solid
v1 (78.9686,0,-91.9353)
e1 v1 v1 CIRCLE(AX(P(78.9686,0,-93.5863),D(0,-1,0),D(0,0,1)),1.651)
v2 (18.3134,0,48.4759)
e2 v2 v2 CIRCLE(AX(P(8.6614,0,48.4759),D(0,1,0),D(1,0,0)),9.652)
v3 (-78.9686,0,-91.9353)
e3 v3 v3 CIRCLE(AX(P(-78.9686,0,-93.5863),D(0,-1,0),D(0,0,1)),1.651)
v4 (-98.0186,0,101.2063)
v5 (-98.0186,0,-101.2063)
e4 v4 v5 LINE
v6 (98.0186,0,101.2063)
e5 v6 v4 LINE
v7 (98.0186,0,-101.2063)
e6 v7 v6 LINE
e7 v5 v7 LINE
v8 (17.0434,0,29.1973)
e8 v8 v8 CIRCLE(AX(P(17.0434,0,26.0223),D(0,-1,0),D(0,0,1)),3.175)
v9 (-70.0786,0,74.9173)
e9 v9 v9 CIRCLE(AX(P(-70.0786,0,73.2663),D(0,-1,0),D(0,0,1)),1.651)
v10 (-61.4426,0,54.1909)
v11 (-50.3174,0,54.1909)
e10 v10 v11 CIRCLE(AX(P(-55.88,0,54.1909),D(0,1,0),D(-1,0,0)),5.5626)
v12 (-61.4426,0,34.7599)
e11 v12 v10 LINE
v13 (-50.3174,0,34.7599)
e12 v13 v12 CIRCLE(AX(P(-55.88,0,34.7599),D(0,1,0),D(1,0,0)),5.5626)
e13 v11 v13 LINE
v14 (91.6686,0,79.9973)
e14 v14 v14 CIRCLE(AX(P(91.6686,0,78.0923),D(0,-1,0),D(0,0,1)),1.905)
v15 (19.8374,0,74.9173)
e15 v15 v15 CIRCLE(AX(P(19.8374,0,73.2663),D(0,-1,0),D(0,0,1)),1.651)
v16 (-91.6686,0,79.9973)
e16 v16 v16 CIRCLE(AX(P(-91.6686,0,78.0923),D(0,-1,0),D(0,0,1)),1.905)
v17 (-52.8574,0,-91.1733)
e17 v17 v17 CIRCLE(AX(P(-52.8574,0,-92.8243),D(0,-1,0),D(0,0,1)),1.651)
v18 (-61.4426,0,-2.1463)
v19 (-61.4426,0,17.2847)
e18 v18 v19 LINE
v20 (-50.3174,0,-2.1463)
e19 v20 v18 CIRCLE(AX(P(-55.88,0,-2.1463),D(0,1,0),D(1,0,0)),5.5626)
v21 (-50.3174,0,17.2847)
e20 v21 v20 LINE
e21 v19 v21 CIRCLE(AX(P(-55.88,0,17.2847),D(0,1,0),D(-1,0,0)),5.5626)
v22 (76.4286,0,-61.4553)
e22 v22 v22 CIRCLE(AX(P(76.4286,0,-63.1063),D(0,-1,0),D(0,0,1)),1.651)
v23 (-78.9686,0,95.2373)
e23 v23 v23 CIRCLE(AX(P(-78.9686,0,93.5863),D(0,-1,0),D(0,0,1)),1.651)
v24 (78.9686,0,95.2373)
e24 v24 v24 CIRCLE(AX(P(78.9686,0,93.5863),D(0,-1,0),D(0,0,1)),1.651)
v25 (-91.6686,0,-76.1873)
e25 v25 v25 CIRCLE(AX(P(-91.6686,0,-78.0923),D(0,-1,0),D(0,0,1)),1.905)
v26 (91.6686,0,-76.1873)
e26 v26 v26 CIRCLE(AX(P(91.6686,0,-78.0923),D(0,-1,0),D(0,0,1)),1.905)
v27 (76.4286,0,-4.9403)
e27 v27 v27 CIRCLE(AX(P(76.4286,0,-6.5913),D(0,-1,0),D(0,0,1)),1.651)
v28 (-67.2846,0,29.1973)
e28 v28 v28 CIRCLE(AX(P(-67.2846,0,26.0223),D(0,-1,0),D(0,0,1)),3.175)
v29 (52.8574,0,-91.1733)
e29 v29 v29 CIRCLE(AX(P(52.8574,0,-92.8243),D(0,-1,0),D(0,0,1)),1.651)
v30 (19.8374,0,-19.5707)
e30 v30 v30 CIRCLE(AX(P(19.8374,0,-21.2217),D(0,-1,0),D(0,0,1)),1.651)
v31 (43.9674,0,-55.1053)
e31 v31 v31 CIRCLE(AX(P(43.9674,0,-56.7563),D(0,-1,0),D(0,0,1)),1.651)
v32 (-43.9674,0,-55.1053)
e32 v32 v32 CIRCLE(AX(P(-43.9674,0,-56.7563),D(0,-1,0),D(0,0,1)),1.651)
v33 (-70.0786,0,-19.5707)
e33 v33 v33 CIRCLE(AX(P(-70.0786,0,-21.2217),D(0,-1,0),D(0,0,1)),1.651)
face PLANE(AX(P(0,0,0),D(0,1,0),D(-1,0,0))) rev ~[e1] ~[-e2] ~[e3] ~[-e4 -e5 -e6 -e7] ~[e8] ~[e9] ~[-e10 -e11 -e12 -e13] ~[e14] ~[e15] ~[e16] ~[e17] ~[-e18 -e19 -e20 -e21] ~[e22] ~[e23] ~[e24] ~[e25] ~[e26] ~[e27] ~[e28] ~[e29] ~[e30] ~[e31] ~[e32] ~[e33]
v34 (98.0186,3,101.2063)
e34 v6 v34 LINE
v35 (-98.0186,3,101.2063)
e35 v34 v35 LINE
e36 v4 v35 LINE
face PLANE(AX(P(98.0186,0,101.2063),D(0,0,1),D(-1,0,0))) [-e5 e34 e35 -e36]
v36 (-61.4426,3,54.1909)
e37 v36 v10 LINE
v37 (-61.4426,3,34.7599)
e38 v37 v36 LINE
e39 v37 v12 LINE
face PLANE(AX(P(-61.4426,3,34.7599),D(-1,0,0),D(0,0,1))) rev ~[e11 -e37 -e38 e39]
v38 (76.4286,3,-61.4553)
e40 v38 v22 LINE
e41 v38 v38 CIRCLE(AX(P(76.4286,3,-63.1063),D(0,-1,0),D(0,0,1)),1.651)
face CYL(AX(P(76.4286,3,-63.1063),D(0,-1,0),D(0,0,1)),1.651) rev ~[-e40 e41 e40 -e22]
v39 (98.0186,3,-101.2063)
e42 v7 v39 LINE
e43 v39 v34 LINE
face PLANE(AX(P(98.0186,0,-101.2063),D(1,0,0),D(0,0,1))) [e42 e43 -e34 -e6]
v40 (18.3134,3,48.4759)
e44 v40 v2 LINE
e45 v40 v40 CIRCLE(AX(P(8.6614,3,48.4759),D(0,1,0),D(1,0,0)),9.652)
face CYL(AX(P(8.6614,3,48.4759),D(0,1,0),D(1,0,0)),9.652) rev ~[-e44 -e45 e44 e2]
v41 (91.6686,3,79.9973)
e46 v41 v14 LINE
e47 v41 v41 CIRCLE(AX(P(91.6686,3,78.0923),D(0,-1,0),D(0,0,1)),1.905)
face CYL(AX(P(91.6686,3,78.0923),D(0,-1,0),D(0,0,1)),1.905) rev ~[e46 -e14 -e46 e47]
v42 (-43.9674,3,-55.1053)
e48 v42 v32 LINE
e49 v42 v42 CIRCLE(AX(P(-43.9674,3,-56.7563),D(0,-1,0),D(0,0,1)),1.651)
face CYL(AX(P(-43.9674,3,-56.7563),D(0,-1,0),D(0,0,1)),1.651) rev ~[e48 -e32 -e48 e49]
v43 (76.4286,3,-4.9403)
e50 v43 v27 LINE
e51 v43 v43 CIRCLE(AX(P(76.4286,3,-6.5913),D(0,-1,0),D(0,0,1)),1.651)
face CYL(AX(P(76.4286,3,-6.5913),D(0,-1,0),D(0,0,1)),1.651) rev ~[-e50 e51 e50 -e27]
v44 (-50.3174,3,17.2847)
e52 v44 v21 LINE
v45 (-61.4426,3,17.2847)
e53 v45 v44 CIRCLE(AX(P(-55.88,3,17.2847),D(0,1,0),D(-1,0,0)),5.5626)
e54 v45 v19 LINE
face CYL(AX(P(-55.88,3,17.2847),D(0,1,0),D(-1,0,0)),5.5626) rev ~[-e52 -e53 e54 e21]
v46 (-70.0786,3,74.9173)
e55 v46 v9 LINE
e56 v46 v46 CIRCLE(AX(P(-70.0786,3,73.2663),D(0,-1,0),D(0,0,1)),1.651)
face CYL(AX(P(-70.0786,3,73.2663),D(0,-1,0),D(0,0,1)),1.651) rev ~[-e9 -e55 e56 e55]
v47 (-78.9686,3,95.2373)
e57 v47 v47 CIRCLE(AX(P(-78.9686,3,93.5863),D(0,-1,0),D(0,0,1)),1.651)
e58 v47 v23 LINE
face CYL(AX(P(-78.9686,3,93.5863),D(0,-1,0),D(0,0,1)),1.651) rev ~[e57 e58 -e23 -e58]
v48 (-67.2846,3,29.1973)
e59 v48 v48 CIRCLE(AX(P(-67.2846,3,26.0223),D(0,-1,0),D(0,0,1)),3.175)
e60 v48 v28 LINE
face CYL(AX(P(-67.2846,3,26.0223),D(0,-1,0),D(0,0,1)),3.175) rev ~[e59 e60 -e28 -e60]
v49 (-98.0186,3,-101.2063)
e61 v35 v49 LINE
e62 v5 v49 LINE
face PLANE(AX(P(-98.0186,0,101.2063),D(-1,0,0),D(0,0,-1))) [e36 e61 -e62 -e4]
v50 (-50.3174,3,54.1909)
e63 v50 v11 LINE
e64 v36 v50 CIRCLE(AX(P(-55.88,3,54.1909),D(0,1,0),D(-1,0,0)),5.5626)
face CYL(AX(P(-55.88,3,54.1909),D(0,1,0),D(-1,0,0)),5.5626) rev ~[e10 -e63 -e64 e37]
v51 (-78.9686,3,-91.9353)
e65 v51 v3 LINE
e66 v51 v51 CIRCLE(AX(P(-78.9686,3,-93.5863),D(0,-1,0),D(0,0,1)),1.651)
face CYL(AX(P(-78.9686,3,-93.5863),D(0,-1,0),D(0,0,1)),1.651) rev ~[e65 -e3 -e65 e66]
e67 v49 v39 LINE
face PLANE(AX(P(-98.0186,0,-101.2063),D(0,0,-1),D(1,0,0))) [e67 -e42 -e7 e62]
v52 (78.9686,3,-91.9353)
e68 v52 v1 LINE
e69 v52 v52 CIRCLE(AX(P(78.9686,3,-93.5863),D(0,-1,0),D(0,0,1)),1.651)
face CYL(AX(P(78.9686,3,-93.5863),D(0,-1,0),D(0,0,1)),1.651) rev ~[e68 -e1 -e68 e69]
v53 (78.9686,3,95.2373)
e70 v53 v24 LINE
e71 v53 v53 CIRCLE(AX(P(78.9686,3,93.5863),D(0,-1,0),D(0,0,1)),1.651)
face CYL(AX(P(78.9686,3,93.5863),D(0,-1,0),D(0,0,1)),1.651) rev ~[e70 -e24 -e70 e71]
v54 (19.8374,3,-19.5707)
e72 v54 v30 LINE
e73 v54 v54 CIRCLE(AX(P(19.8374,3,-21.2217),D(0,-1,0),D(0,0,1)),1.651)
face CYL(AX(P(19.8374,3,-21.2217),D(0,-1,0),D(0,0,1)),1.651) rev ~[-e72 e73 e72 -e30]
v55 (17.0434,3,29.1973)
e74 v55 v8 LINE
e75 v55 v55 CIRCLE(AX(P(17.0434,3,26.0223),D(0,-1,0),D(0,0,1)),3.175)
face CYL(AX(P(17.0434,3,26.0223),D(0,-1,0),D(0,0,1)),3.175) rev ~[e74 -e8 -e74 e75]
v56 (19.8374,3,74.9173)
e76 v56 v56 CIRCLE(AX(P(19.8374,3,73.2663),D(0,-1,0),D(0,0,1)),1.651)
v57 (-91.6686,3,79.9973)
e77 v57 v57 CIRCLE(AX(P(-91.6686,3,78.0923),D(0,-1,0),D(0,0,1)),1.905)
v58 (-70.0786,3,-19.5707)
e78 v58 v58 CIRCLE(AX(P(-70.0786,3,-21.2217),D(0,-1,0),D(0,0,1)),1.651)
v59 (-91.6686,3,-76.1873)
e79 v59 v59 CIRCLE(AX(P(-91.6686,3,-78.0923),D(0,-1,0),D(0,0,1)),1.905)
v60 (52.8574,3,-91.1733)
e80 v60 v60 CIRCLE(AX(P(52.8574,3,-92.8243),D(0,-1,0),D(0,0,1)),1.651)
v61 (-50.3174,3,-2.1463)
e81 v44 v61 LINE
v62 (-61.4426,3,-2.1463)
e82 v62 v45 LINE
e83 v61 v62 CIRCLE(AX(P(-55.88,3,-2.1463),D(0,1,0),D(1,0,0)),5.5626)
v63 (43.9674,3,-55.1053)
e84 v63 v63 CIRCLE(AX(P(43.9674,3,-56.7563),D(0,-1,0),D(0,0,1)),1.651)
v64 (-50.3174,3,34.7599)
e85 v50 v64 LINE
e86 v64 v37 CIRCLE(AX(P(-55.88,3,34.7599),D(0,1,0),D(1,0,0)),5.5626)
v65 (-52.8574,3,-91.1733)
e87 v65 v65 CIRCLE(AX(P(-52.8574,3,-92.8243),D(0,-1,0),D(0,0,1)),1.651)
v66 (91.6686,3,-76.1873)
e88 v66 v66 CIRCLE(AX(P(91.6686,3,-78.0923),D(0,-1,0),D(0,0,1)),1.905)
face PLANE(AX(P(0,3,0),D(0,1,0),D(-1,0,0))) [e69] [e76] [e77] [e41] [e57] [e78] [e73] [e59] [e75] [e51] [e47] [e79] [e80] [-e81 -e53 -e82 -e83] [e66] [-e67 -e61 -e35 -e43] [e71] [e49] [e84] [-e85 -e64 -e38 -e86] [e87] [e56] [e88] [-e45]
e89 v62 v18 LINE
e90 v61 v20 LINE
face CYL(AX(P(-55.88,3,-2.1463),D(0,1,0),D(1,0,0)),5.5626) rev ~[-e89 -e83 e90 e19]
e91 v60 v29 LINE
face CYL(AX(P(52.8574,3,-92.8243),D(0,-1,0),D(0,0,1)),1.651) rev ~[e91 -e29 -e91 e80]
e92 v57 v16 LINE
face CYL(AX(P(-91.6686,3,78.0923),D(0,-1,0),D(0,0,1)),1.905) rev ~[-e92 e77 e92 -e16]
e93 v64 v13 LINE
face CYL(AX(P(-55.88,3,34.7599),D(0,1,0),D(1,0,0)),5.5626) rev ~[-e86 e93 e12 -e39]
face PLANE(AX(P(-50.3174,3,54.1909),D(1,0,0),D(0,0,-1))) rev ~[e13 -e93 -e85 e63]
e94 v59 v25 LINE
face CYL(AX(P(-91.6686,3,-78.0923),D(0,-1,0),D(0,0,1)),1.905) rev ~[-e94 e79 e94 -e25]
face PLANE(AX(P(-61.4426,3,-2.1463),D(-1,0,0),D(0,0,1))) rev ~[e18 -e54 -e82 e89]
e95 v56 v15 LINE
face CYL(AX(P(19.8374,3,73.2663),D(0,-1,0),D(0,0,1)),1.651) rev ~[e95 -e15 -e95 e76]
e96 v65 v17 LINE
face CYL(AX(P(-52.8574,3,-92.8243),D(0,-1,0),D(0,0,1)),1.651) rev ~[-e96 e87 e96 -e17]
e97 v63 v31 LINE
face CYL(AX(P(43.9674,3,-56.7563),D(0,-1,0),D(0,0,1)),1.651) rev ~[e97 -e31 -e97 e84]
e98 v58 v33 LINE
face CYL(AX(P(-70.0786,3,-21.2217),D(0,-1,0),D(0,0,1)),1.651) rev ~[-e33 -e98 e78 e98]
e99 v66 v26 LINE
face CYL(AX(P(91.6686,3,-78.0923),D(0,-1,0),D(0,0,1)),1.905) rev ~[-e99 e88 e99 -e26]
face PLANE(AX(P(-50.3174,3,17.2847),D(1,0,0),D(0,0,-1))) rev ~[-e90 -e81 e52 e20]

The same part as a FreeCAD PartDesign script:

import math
import FreeCAD as App
import Part
import Sketcher
from FreeCAD import Vector
Q = App.Units.Quantity


def add_polygon(sketch, points):
    """Adds a closed chain of lines whose ends are joined by coincident constraints."""
    first, n = sketch.GeometryCount, len(points)
    for a, b in zip(points, points[1:] + points[:1]):
        sketch.addGeometry(Part.LineSegment(App.Vector(*a, 0), App.Vector(*b, 0)), False)
    for i in range(n):
        sketch.addConstraint(Sketcher.Constraint("Coincident", first + i, 2, first + (i + 1) % n, 1))

doc = App.newDocument("Part")
params = doc.addObject("Spreadsheet::Sheet", "Params")
for row, (alias, value) in enumerate([
    ("sketch1_width", "7.718 in"),
    ("sketch1_height", "7.969 in"),
    ("pad1_length", "0.1181102 in"),
    ("sketch2_diameter", "0.15 in"),
    ("hole_diameter", "0.15 in"),
    ("sketch3_diameter", "0.13 in"),
    ("hole2_diameter", "0.13 in"),
    ("sketch4_diameter", "0.25 in"),
    ("hole3_diameter", "0.25 in"),
    ("sketch5_diameter", "0.13 in"),
    ("hole4_diameter", "0.13 in"),
    ("sketch6_diameter", "0.13 in"),
    ("hole5_diameter", "0.13 in"),
    ("sketch7_diameter", "0.13 in"),
    ("hole6_diameter", "0.13 in"),
    ("sketch8_radius", "0.219 in"),
    ("sketch8_height", "0.765 in"),
    ("sketch9_diameter", "0.76 in"),
], start=1):
    params.set(f"A{row}", alias)
    params.set(f"B{row}", "=" + value)
    params.setAlias(f"B{row}", alias)

body = doc.addObject("PartDesign::Body", "Body")

# Sketch on XZ plane
sketch1 = doc.addObject("Sketcher::SketchObject", "Sketch")
body.addObject(sketch1)
sketch1.AttachmentSupport = (doc.XZ_Plane, [""])
sketch1.MapMode = "FlatFace"
add_polygon(sketch1, [(98, -101), (-98, -101), (-98, 101), (98, 101)])  # lines 0-3
sketch1.addConstraint([
    Sketcher.Constraint("Horizontal", 0),
    Sketcher.Constraint("Vertical", 1),
    Sketcher.Constraint("Horizontal", 2),
    Sketcher.Constraint("Vertical", 3),
    Sketcher.Constraint("Symmetric", 0, 2, 2, 2, -1, 1),
    Sketcher.Constraint("DistanceX", 0, 2, 0, 1, Q("7.718 in")),
    Sketcher.Constraint("DistanceY", 1, 1, 1, 2, Q("7.969 in")),
])
sketch1.setExpression("Constraints[9]", "Params.sketch1_width")
sketch1.setExpression("Constraints[10]", "Params.sketch1_height")
pad1 = doc.addObject("PartDesign::Pad", "Pad")
body.addObject(pad1)
pad1.Profile = sketch1
pad1.setExpression("Length", "Params.pad1_length")
pad1.Reversed = True

# Sketch on XZ plane
sketch2 = doc.addObject("Sketcher::SketchObject", "Sketch001")
body.addObject(sketch2)
sketch2.AttachmentSupport = (doc.XZ_Plane, [""])
sketch2.MapMode = "FlatFace"
sketch2.AttachmentOffset = App.Placement(Vector(0, 0, -0.1181102 * 25.4), App.Rotation())
sketch2.addGeometry([
    Part.Circle(Vector(-91.7, -78.1, 0), Vector(0, 0, 1), 1.9),
    Part.Circle(Vector(91.7, -78.1, 0), Vector(0, 0, 1), 1.9),
    Part.Circle(Vector(-91.7, 78.1, 0), Vector(0, 0, 1), 1.9),
    Part.Circle(Vector(91.7, 78.1, 0), Vector(0, 0, 1), 1.9),
], False)
sketch2.addConstraint([
    Sketcher.Constraint("Equal", 0, 1),
    Sketcher.Constraint("Equal", 1, 2),
    Sketcher.Constraint("Equal", 2, 3),
    Sketcher.Constraint("Symmetric", 1, 3, 2, 3, -1, 1),
    Sketcher.Constraint("Symmetric", 0, 3, 3, 3, -1, 1),
    Sketcher.Constraint("Symmetric", 0, 3, 1, 3, -2),
    Sketcher.Constraint("Diameter", 0, Q("0.15 in")),
    Sketcher.Constraint("DistanceX", 0, 3, -1, 1, Q("3.609 in")),
    Sketcher.Constraint("DistanceY", 0, 3, 2, 3, Q("6.149 in")),
])
sketch2.setExpression("Constraints[6]", "Params.sketch2_diameter")
doc.recompute()
hole = doc.addObject("PartDesign::Hole", "Hole")
body.addObject(hole)
hole.Profile = sketch2
hole.ThreadType = "None"
hole.setExpression("Diameter", "Params.hole_diameter")
hole.DepthType = "ThroughAll"
hole.Reversed = True

# Sketch on XZ plane
sketch3 = doc.addObject("Sketcher::SketchObject", "Sketch002")
body.addObject(sketch3)
sketch3.AttachmentSupport = (doc.XZ_Plane, [""])
sketch3.MapMode = "FlatFace"
sketch3.AttachmentOffset = App.Placement(Vector(0, 0, -0.1181102 * 25.4), App.Rotation())
sketch3.addGeometry([
    Part.Circle(Vector(-70.1, 73.3, 0), Vector(0, 0, 1), 1.7),
    Part.Circle(Vector(19.8, 73.3, 0), Vector(0, 0, 1), 1.7),
    Part.Circle(Vector(19.8, -21.2, 0), Vector(0, 0, 1), 1.7),
    Part.Circle(Vector(-70.1, -21.2, 0), Vector(0, 0, 1), 1.7),
], False)
sketch3.addConstraint([
    Sketcher.Constraint("Equal", 0, 1),
    Sketcher.Constraint("Equal", 1, 2),
    Sketcher.Constraint("Equal", 2, 3),
    Sketcher.Constraint("Horizontal", 0, 3, 1, 3),
    Sketcher.Constraint("Horizontal", 2, 3, 3, 3),
    Sketcher.Constraint("Vertical", 1, 3, 2, 3),
    Sketcher.Constraint("Vertical", 0, 3, 3, 3),
    Sketcher.Constraint("Diameter", 0, Q("0.13 in")),
    Sketcher.Constraint("DistanceX", 0, 3, 1, 3, Q("3.54 in")),
    Sketcher.Constraint("DistanceY", 2, 3, 1, 3, Q("3.72 in")),
    Sketcher.Constraint("DistanceX", 0, 3, -1, 1, Q("2.759 in")),
    Sketcher.Constraint("DistanceY", -1, 1, 0, 3, Q("2.8845 in")),
])
sketch3.setExpression("Constraints[7]", "Params.sketch3_diameter")
doc.recompute()
hole2 = doc.addObject("PartDesign::Hole", "Hole001")
body.addObject(hole2)
hole2.Profile = sketch3
hole2.ThreadType = "None"
hole2.setExpression("Diameter", "Params.hole2_diameter")
hole2.DepthType = "ThroughAll"
hole2.Reversed = True

# Sketch on XZ plane
sketch4 = doc.addObject("Sketcher::SketchObject", "Sketch003")
body.addObject(sketch4)
sketch4.AttachmentSupport = (doc.XZ_Plane, [""])
sketch4.MapMode = "FlatFace"
sketch4.AttachmentOffset = App.Placement(Vector(0, 0, -0.1181102 * 25.4), App.Rotation())
sketch4.addGeometry([
    Part.Circle(Vector(-67.3, 26, 0), Vector(0, 0, 1), 3.2),
    Part.Circle(Vector(17, 26, 0), Vector(0, 0, 1), 3.2),
], False)
sketch4.addConstraint([
    Sketcher.Constraint("Equal", 0, 1),
    Sketcher.Constraint("Horizontal", 0, 3, 1, 3),
    Sketcher.Constraint("Diameter", 0, Q("0.25 in")),
    Sketcher.Constraint("DistanceX", 0, 3, 1, 3, Q("3.32 in")),
    Sketcher.Constraint("DistanceX", 0, 3, -1, 1, Q("2.649 in")),
    Sketcher.Constraint("DistanceY", -1, 1, 0, 3, Q("1.0245 in")),
])
sketch4.setExpression("Constraints[2]", "Params.sketch4_diameter")
doc.recompute()
hole3 = doc.addObject("PartDesign::Hole", "Hole002")
body.addObject(hole3)
hole3.Profile = sketch4
hole3.ThreadType = "None"
hole3.setExpression("Diameter", "Params.hole3_diameter")
hole3.DepthType = "ThroughAll"
hole3.Reversed = True

# Sketch on XZ plane
sketch5 = doc.addObject("Sketcher::SketchObject", "Sketch004")
body.addObject(sketch5)
sketch5.AttachmentSupport = (doc.XZ_Plane, [""])
sketch5.MapMode = "FlatFace"
sketch5.AttachmentOffset = App.Placement(Vector(0, 0, -0.1181102 * 25.4), App.Rotation())
sketch5.addGeometry([
    Part.Circle(Vector(-52.9, -92.8, 0), Vector(0, 0, 1), 1.7),
    Part.Circle(Vector(-44, -56.8, 0), Vector(0, 0, 1), 1.7),
    Part.Circle(Vector(52.9, -92.8, 0), Vector(0, 0, 1), 1.7),
    Part.Circle(Vector(44, -56.8, 0), Vector(0, 0, 1), 1.7),
], False)
sketch5.addConstraint([
    Sketcher.Constraint("Equal", 0, 1),
    Sketcher.Constraint("Equal", 1, 2),
    Sketcher.Constraint("Equal", 2, 3),
    Sketcher.Constraint("Symmetric", 0, 3, 2, 3, -2),
    Sketcher.Constraint("Symmetric", 1, 3, 3, 3, -2),
    Sketcher.Constraint("Diameter", 0, Q("0.13 in")),
    Sketcher.Constraint("DistanceX", 0, 3, 1, 3, Q("0.35 in")),
    Sketcher.Constraint("DistanceY", 0, 3, 1, 3, Q("1.42 in")),
    Sketcher.Constraint("DistanceX", 0, 3, -1, 1, Q("2.081 in")),
    Sketcher.Constraint("DistanceY", 0, 3, -1, 1, Q("3.6545 in")),
])
sketch5.setExpression("Constraints[5]", "Params.sketch5_diameter")
doc.recompute()
hole4 = doc.addObject("PartDesign::Hole", "Hole003")
body.addObject(hole4)
hole4.Profile = sketch5
hole4.ThreadType = "None"
hole4.setExpression("Diameter", "Params.hole4_diameter")
hole4.DepthType = "ThroughAll"
hole4.Reversed = True

# Sketch on XZ plane
sketch6 = doc.addObject("Sketcher::SketchObject", "Sketch005")
body.addObject(sketch6)
sketch6.AttachmentSupport = (doc.XZ_Plane, [""])
sketch6.MapMode = "FlatFace"
sketch6.AttachmentOffset = App.Placement(Vector(0, 0, -0.1181102 * 25.4), App.Rotation())
sketch6.addGeometry([
    Part.Circle(Vector(76.4, -6.6, 0), Vector(0, 0, 1), 1.7),
    Part.Circle(Vector(76.4, -63.1, 0), Vector(0, 0, 1), 1.7),
], False)
sketch6.addConstraint([
    Sketcher.Constraint("Equal", 0, 1),
    Sketcher.Constraint("Vertical", 0, 3, 1, 3),
    Sketcher.Constraint("Diameter", 0, Q("0.13 in")),
    Sketcher.Constraint("DistanceX", -1, 1, 0, 3, Q("3.009 in")),
    Sketcher.Constraint("DistanceY", 1, 3, 0, 3, Q("2.225 in")),
    Sketcher.Constraint("DistanceY", 0, 3, -1, 1, Q("0.2595 in")),
])
sketch6.setExpression("Constraints[2]", "Params.sketch6_diameter")
doc.recompute()
hole5 = doc.addObject("PartDesign::Hole", "Hole004")
body.addObject(hole5)
hole5.Profile = sketch6
hole5.ThreadType = "None"
hole5.setExpression("Diameter", "Params.hole5_diameter")
hole5.DepthType = "ThroughAll"
hole5.Reversed = True

# Sketch on XZ plane
sketch7 = doc.addObject("Sketcher::SketchObject", "Sketch006")
body.addObject(sketch7)
sketch7.AttachmentSupport = (doc.XZ_Plane, [""])
sketch7.MapMode = "FlatFace"
sketch7.AttachmentOffset = App.Placement(Vector(0, 0, -0.1181102 * 25.4), App.Rotation())
sketch7.addGeometry([
    Part.Circle(Vector(-79, 93.6, 0), Vector(0, 0, 1), 1.7),
    Part.Circle(Vector(79, 93.6, 0), Vector(0, 0, 1), 1.7),
    Part.Circle(Vector(79, -93.6, 0), Vector(0, 0, 1), 1.7),
    Part.Circle(Vector(-79, -93.6, 0), Vector(0, 0, 1), 1.7),
], False)
sketch7.addConstraint([
    Sketcher.Constraint("Equal", 0, 1),
    Sketcher.Constraint("Equal", 1, 2),
    Sketcher.Constraint("Equal", 2, 3),
    Sketcher.Constraint("Symmetric", 0, 3, 2, 3, -1, 1),
    Sketcher.Constraint("Symmetric", 1, 3, 3, 3, -1, 1),
    Sketcher.Constraint("Symmetric", 0, 3, 1, 3, -2),
    Sketcher.Constraint("Diameter", 0, Q("0.13 in")),
    Sketcher.Constraint("DistanceX", 0, 3, -1, 1, Q("3.109 in")),
    Sketcher.Constraint("DistanceY", 2, 3, 1, 3, Q("7.369 in")),
])
sketch7.setExpression("Constraints[6]", "Params.sketch7_diameter")
doc.recompute()
hole6 = doc.addObject("PartDesign::Hole", "Hole005")
body.addObject(hole6)
hole6.Profile = sketch7
hole6.ThreadType = "None"
hole6.setExpression("Diameter", "Params.hole6_diameter")
hole6.DepthType = "ThroughAll"
hole6.Reversed = True

# Sketch on XZ plane
sketch8 = doc.addObject("Sketcher::SketchObject", "Sketch007")
body.addObject(sketch8)
sketch8.AttachmentSupport = (doc.XZ_Plane, [""])
sketch8.MapMode = "FlatFace"
sketch8.AttachmentOffset = App.Placement(Vector(0, 0, -0.1181102 * 25.4), App.Rotation())
sketch8.addGeometry([
    Part.ArcOfCircle(Part.Circle(Vector(-56, -2, 0), Vector(0, 0, 1), 6), math.radians(180), math.radians(360)),  # 0
    Part.LineSegment(Vector(-61, -2, 0), Vector(-61, 17, 0)),  # 1
    Part.ArcOfCircle(Part.Circle(Vector(-56, 17, 0), Vector(0, 0, 1), 6), math.radians(0), math.radians(180)),  # 2
    Part.LineSegment(Vector(-50, 17, 0), Vector(-50, -2, 0)),  # 3
    Part.ArcOfCircle(Part.Circle(Vector(-56, 35, 0), Vector(0, 0, 1), 6), math.radians(180), math.radians(360)),  # 4
    Part.LineSegment(Vector(-61, 35, 0), Vector(-61, 54, 0)),  # 5
    Part.ArcOfCircle(Part.Circle(Vector(-56, 54, 0), Vector(0, 0, 1), 6), math.radians(0), math.radians(180)),  # 6
    Part.LineSegment(Vector(-50, 54, 0), Vector(-50, 35, 0)),  # 7
], False)
sketch8.addConstraint([
    Sketcher.Constraint("Tangent", 0, 1, 1, 1),
    Sketcher.Constraint("Tangent", 1, 2, 2, 2),
    Sketcher.Constraint("Tangent", 2, 1, 3, 1),
    Sketcher.Constraint("Tangent", 3, 2, 0, 2),
    Sketcher.Constraint("Tangent", 4, 1, 5, 1),
    Sketcher.Constraint("Tangent", 5, 2, 6, 2),
    Sketcher.Constraint("Tangent", 6, 1, 7, 1),
    Sketcher.Constraint("Tangent", 7, 2, 4, 2),
    Sketcher.Constraint("Vertical", 1),
    Sketcher.Constraint("Vertical", 3),
    Sketcher.Constraint("Vertical", 5),
    Sketcher.Constraint("Vertical", 7),
    Sketcher.Constraint("Equal", 2, 4),
    Sketcher.Constraint("Vertical", 2, 3, 4, 3),
    Sketcher.Constraint("Equal", 3, 5),
    Sketcher.Constraint("Radius", 0, Q("0.219 in")),
    Sketcher.Constraint("DistanceY", 1, 1, 1, 2, Q("0.765 in")),
    Sketcher.Constraint("DistanceY", 2, 3, 4, 3, Q("0.688 in")),
    Sketcher.Constraint("DistanceX", 0, 3, -1, 1, Q("2.2 in")),
    Sketcher.Constraint("DistanceY", 0, 3, -1, 1, Q("0.0845 in")),
])
sketch8.setExpression("Constraints[15]", "Params.sketch8_radius")
sketch8.setExpression("Constraints[16]", "Params.sketch8_height")
pocket1 = doc.addObject("PartDesign::Pocket", "Pocket")
body.addObject(pocket1)
pocket1.Profile = sketch8
pocket1.Type = "ThroughAll"
pocket1.Reversed = True

# Sketch on XZ plane
sketch9 = doc.addObject("Sketcher::SketchObject", "Sketch008")
body.addObject(sketch9)
sketch9.AttachmentSupport = (doc.XZ_Plane, [""])
sketch9.MapMode = "FlatFace"
sketch9.AttachmentOffset = App.Placement(Vector(0, 0, -0.1181102 * 25.4), App.Rotation())
sketch9.addGeometry(Part.Circle(Vector(9, 48, 0), Vector(0, 0, 1), 10), False)
sketch9.addConstraint([
    Sketcher.Constraint("Diameter", 0, Q("0.76 in")),
    Sketcher.Constraint("DistanceX", -1, 1, 0, 3, Q("0.341 in")),
    Sketcher.Constraint("DistanceY", -1, 1, 0, 3, Q("1.9085 in")),
])
sketch9.setExpression("Constraints[0]", "Params.sketch9_diameter")
pocket2 = doc.addObject("PartDesign::Pocket", "Pocket001")
body.addObject(pocket2)
pocket2.Profile = sketch9
pocket2.Type = "ThroughAll"
pocket2.Reversed = True

doc.recompute()
